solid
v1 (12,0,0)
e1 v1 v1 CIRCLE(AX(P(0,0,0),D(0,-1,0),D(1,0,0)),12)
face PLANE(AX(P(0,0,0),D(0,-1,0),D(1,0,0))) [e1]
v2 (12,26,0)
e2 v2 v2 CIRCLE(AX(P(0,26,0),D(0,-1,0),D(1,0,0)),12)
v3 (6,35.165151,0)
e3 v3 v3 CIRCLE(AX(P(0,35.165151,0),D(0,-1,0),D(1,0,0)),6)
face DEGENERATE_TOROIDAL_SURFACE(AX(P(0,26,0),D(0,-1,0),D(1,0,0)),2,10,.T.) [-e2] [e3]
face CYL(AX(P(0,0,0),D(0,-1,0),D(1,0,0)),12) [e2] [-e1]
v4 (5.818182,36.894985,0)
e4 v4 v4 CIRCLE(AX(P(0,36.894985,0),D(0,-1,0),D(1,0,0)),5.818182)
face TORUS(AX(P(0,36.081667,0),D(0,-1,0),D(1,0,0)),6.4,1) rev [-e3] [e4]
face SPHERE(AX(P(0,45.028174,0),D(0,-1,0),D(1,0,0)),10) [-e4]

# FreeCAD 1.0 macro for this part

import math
import FreeCAD as App
import Part
import Sketcher
from FreeCAD import Vector
Q = App.Units.Quantity

doc = App.newDocument("Part")
body = doc.addObject("PartDesign::Body", "Body")

# Sketch on XY plane
sketch1 = body.newObject("Sketcher::SketchObject", "Sketch")
sketch1.AttachmentSupport = (doc.getObject("XY_Plane"), [""])
sketch1.MapMode = "FlatFace"
sketch1.addGeometry(Part.LineSegment(Vector(0, 0, 0), Vector(12, 0, 0)), False)
sketch1.addGeometry(Part.LineSegment(Vector(12, 0, 0), Vector(12, 26, 0)), False)
sketch1.addGeometry(Part.ArcOfCircle(Part.Circle(Vector(2, 26, 0), Vector(0, 0, 1), 10), math.radians(0), math.radians(66)), False)
sketch1.addGeometry(Part.ArcOfCircle(Part.Circle(Vector(6.4, 36.1, 0), Vector(0, 0, 1), 1), math.radians(126), math.radians(246)), False)
sketch1.addGeometry(Part.ArcOfCircle(Part.Circle(Vector(0, 45, 0), Vector(0, 0, 1), 10), math.radians(-54), math.radians(90)), False)
sketch1.addGeometry(Part.LineSegment(Vector(0, 55, 0), Vector(0, 0, 0)), False)
sketch1.addConstraint(Sketcher.Constraint("Coincident", 0, 2, 1, 1))
sketch1.addConstraint(Sketcher.Constraint("Tangent", 1, 2, 2, 1))
sketch1.addConstraint(Sketcher.Constraint("Tangent", 2, 2, 3, 2))
sketch1.addConstraint(Sketcher.Constraint("Tangent", 3, 1, 4, 1))
sketch1.addConstraint(Sketcher.Constraint("Coincident", 4, 2, 5, 1))
sketch1.addConstraint(Sketcher.Constraint("Coincident", 5, 2, 0, 1))
sketch1.addConstraint(Sketcher.Constraint("Horizontal", 0))
sketch1.addConstraint(Sketcher.Constraint("Vertical", 1))
sketch1.addConstraint(Sketcher.Constraint("Vertical", 5))
sketch1.addConstraint(Sketcher.Constraint("Coincident", 5, 2, -1, 1))
sketch1.addConstraint(Sketcher.Constraint("Equal", 2, 4))
sketch1.addConstraint(Sketcher.Constraint("PointOnObject", 4, 3, -2))
sketch1.addConstraint(Sketcher.Constraint("Radius", 2, Q("10 mm")))
sketch1.addConstraint(Sketcher.Constraint("Radius", 3, Q("1 mm")))
sketch1.addConstraint(Sketcher.Constraint("DistanceX", 0, 1, 0, 2, Q("12 mm")))
sketch1.addConstraint(Sketcher.Constraint("DistanceY", 1, 1, 1, 2, Q("26 mm")))
sketch1.addConstraint(Sketcher.Constraint("DistanceX", -1, 1, 2, 2, Q("6 mm")))
revolution = body.newObject("PartDesign::Revolution", "Revolution")
revolution.Profile = sketch1
revolution.ReferenceAxis = (sketch1, ["V_Axis"])
revolution.Angle = 360

doc.recompute()
